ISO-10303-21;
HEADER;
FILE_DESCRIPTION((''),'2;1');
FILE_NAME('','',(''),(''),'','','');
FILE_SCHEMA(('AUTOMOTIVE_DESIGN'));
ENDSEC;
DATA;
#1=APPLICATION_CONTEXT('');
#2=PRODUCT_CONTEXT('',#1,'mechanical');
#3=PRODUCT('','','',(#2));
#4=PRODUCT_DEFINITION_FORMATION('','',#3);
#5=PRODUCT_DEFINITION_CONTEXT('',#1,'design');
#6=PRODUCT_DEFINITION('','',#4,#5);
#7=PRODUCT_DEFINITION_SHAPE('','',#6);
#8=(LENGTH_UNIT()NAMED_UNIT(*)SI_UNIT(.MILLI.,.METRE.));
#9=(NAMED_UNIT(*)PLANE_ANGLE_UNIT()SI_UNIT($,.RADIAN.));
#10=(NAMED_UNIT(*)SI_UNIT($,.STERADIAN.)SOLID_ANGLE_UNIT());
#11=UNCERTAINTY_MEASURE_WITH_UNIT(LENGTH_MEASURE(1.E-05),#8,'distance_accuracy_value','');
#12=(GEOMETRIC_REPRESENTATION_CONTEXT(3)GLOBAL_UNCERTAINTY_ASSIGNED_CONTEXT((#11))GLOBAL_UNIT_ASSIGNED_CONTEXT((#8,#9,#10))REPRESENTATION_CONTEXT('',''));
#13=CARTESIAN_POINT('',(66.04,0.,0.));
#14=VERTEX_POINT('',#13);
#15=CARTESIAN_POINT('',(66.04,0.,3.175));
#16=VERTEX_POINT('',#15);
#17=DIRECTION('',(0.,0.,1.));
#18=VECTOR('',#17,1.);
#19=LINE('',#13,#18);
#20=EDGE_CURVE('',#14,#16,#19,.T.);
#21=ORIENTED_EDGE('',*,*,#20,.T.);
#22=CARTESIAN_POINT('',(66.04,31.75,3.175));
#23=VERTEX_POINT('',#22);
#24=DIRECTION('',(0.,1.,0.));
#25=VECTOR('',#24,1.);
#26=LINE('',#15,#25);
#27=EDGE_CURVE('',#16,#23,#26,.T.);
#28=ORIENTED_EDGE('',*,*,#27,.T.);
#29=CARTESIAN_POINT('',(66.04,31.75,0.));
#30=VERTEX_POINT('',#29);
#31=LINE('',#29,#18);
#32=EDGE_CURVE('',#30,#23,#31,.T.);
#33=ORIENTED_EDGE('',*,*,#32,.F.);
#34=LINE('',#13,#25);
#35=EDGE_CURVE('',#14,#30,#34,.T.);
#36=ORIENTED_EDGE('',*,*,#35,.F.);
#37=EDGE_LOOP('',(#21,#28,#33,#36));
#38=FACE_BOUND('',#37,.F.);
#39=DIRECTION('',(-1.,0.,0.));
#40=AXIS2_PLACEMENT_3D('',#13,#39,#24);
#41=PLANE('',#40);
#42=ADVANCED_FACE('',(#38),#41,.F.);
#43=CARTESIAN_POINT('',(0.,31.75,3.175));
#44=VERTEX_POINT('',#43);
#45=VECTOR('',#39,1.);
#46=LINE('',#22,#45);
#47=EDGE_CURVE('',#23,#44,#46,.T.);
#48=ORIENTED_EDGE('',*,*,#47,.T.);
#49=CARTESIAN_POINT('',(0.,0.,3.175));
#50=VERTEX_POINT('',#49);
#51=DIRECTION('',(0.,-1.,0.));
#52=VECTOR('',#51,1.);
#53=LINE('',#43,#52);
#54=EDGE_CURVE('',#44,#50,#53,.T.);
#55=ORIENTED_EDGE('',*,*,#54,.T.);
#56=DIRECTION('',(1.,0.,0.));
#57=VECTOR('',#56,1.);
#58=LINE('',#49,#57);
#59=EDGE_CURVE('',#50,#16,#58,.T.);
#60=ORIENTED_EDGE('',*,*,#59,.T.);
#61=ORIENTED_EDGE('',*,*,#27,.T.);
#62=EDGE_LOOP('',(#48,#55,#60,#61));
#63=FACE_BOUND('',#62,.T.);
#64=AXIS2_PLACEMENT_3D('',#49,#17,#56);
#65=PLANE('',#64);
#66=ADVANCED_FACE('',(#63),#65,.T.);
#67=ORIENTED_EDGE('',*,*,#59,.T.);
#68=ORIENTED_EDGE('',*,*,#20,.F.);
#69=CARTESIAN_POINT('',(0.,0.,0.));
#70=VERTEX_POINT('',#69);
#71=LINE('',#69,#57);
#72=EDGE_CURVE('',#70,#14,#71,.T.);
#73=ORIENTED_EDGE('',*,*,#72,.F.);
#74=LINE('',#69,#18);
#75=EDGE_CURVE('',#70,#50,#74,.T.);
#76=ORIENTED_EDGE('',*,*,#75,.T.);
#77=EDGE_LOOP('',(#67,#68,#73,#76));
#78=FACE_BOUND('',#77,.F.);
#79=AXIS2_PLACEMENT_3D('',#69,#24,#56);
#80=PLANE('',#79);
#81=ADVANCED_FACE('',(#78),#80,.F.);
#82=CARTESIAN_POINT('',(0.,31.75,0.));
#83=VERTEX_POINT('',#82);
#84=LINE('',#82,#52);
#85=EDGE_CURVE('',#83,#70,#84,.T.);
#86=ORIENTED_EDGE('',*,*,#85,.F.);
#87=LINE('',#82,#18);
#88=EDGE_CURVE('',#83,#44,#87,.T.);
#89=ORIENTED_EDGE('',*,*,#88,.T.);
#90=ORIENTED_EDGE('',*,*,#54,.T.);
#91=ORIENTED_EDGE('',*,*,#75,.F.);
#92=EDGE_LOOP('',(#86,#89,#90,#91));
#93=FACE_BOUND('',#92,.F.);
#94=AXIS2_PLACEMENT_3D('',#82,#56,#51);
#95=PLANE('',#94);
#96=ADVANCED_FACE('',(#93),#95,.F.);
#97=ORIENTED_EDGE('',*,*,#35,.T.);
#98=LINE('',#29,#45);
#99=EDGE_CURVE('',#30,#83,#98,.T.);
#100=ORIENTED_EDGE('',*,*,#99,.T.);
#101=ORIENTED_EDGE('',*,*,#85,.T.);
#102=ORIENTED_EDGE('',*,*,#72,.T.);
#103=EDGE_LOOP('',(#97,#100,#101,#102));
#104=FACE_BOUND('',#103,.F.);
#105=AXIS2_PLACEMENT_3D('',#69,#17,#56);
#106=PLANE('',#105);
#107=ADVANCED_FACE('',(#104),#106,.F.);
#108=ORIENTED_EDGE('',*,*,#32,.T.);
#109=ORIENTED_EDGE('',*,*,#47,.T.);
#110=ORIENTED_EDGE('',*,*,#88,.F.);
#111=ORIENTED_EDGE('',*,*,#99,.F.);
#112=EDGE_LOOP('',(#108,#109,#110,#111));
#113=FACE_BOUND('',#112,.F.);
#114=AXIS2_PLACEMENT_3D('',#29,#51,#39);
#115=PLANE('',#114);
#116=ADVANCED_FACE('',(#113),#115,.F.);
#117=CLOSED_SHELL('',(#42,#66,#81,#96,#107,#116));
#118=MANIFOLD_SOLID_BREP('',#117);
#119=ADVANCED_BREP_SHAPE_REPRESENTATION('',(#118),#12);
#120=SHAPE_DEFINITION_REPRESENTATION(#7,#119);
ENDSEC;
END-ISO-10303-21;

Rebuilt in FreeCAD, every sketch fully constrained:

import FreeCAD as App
import Part
import Sketcher
from FreeCAD import Vector
Q = App.Units.Quantity

doc = App.newDocument("Part")
body = doc.addObject("PartDesign::Body", "Body")

# Sketch on XY plane
sketch1 = doc.addObject("Sketcher::SketchObject", "Sketch")
body.addObject(sketch1)
sketch1.AttachmentSupport = (doc.XY_Plane, [""])
sketch1.MapMode = "FlatFace"
sketch1.addGeometry([
    Part.LineSegment(Vector(0, 31.75, 0), Vector(0, 0, 0)),
    Part.LineSegment(Vector(0, 0, 0), Vector(66.04, 0, 0)),
    Part.LineSegment(Vector(66.04, 0, 0), Vector(66.04, 31.75, 0)),
    Part.LineSegment(Vector(66.04, 31.75, 0), Vector(0, 31.75, 0)),
], False)
sketch1.addConstraint([
    Sketcher.Constraint("Coincident", 0, 2, 1, 1),
    Sketcher.Constraint("Coincident", 1, 2, 2, 1),
    Sketcher.Constraint("Coincident", 2, 2, 3, 1),
    Sketcher.Constraint("Coincident", 3, 2, 0, 1),
    Sketcher.Constraint("Vertical", 0),
    Sketcher.Constraint("Horizontal", 1),
    Sketcher.Constraint("Vertical", 2),
    Sketcher.Constraint("Horizontal", 3),
    Sketcher.Constraint("Coincident", 0, 2, -1, 1),
    Sketcher.Constraint("DistanceX", 1, 1, 1, 2, Q("2.6 in")),
    Sketcher.Constraint("DistanceY", 0, 2, 0, 1, Q("1.25 in")),
])
pad1 = doc.addObject("PartDesign::Pad", "Pad")
body.addObject(pad1)
pad1.Profile = sketch1
pad1.Length = Q("0.125 in")

doc.recompute()
